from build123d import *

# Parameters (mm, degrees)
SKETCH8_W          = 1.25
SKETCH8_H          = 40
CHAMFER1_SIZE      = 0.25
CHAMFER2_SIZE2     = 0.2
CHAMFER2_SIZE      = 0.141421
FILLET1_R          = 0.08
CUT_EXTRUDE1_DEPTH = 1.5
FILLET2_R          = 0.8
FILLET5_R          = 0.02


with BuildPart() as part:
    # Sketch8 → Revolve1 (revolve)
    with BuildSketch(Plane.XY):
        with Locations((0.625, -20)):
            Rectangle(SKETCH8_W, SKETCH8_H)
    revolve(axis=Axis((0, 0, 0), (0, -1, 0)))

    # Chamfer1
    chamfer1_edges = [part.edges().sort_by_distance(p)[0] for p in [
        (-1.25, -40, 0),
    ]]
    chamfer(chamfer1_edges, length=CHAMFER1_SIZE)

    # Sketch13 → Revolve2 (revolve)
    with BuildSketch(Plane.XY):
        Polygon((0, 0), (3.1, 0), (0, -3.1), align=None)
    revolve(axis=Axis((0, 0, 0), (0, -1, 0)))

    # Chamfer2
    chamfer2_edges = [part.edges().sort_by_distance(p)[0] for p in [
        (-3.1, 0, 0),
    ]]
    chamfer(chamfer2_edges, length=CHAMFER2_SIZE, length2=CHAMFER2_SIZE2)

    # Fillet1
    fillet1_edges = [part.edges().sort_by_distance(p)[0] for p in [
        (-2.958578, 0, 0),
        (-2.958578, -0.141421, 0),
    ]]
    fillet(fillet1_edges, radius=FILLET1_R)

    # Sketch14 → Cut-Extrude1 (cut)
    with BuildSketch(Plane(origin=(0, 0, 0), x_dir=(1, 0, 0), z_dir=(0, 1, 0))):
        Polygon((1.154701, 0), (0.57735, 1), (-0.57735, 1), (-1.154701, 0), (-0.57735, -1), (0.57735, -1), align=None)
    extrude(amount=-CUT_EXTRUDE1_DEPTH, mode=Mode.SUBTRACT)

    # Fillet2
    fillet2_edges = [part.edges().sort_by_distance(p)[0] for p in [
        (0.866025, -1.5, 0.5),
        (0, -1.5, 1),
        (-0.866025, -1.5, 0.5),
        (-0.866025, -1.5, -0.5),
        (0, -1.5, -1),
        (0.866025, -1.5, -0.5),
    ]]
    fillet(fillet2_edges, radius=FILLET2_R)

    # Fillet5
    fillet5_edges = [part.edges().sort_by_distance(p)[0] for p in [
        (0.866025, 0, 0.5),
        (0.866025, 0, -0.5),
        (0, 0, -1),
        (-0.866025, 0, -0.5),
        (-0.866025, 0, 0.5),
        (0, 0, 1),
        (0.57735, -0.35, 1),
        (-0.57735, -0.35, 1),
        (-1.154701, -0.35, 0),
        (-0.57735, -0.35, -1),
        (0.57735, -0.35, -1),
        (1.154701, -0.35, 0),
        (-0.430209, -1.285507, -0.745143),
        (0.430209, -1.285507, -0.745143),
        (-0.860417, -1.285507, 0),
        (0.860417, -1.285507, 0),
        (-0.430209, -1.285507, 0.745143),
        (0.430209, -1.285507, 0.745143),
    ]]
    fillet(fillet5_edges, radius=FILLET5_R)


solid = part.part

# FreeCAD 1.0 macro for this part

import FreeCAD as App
import Part
import Sketcher
from FreeCAD import Vector
Q = App.Units.Quantity


def edges_at(feature, points):
    """Names of the edges that pass closest to the given points."""
    edges = feature.Shape.Edges
    near = lambda p: min(range(len(edges)), key=lambda i: edges[i].distToShape(Part.Vertex(*p))[0])
    return sorted({f"Edge{near(p) + 1}" for p in points})

doc = App.newDocument("Part")
params = doc.addObject("Spreadsheet::Sheet", "Params")
for row, (alias, value) in enumerate([
    ("sketch1_height", "40 mm"),
    ("sketch1_width", "1.25 mm"),
    ("revolution_angle", "360 deg"),
    ("chamfer_size", "0.25 mm"),
    ("sketch2_width", "3.1 mm"),
    ("revolution2_angle", "360 deg"),
    ("chamfer2_size", "0.141421 mm"),
    ("chamfer2_size2", "0.2 mm"),
    ("fillet_radius", "0.08 mm"),
    ("pocket1_length", "1.5 mm"),
    ("fillet2_radius", "0.8 mm"),
    ("fillet3_radius", "0.02 mm"),
], start=1):
    params.set(f"A{row}", alias)
    params.set(f"B{row}", "=" + value)
    params.setAlias(f"B{row}", alias)

body = doc.addObject("PartDesign::Body", "Body")

# Sketch on XY plane
sketch1 = body.newObject("Sketcher::SketchObject", "Sketch")
sketch1.AttachmentSupport = (doc.getObject("XY_Plane"), [""])
sketch1.MapMode = "FlatFace"
sketch1.addGeometry([
    Part.LineSegment(Vector(0, 0, 0), Vector(0, -40, 0)),
    Part.LineSegment(Vector(0, -40, 0), Vector(1.2, -40, 0)),
    Part.LineSegment(Vector(1.2, -40, 0), Vector(1.2, 0, 0)),
    Part.LineSegment(Vector(1.2, 0, 0), Vector(0, 0, 0)),
], False)
sketch1.addConstraint([
    Sketcher.Constraint("Coincident", 0, 2, 1, 1),
    Sketcher.Constraint("Coincident", 1, 2, 2, 1),
    Sketcher.Constraint("Coincident", 2, 2, 3, 1),
    Sketcher.Constraint("Coincident", 3, 2, 0, 1),
    Sketcher.Constraint("Vertical", 0),
    Sketcher.Constraint("Horizontal", 1),
    Sketcher.Constraint("Vertical", 2),
    Sketcher.Constraint("Horizontal", 3),
    Sketcher.Constraint("Coincident", 3, 2, -1, 1),
    Sketcher.Constraint("DistanceY", 0, 2, 0, 1, Q("40 mm")),
    Sketcher.Constraint("DistanceX", 1, 1, 1, 2, Q("1.25 mm")),
])
sketch1.setExpression("Constraints[9]", "Params.sketch1_height")
sketch1.setExpression("Constraints[10]", "Params.sketch1_width")
revolution = body.newObject("PartDesign::Revolution", "Revolution")
revolution.Profile = sketch1
revolution.ReferenceAxis = (sketch1, ["V_Axis"])
revolution.setExpression("Angle", "Params.revolution_angle")
doc.recompute()

chamfer = body.newObject("PartDesign::Chamfer", "Chamfer")
chamfer.Base = (revolution, edges_at(revolution, [(-1.25, -40, 0)]))
chamfer.setExpression("Size", "Params.chamfer_size")

# Sketch on XY plane
sketch2 = body.newObject("Sketcher::SketchObject", "Sketch001")
sketch2.AttachmentSupport = (doc.getObject("XY_Plane"), [""])
sketch2.MapMode = "FlatFace"
sketch2.addGeometry([
    Part.LineSegment(Vector(3.1, 0, 0), Vector(0, 0, 0)),
    Part.LineSegment(Vector(0, 0, 0), Vector(0, -3.1, 0)),
    Part.LineSegment(Vector(0, -3.1, 0), Vector(3.1, 0, 0)),
], False)
sketch2.addConstraint([
    Sketcher.Constraint("Coincident", 0, 2, 1, 1),
    Sketcher.Constraint("Coincident", 1, 2, 2, 1),
    Sketcher.Constraint("Coincident", 2, 2, 0, 1),
    Sketcher.Constraint("Horizontal", 0),
    Sketcher.Constraint("Vertical", 1),
    Sketcher.Constraint("Coincident", 0, 2, -1, 1),
    Sketcher.Constraint("Equal", 0, 1),
    Sketcher.Constraint("DistanceX", 0, 2, 0, 1, Q("3.1 mm")),
])
sketch2.setExpression("Constraints[7]", "Params.sketch2_width")
revolution2 = body.newObject("PartDesign::Revolution", "Revolution001")
revolution2.Profile = sketch2
revolution2.ReferenceAxis = (sketch2, ["V_Axis"])
revolution2.setExpression("Angle", "Params.revolution2_angle")
doc.recompute()

chamfer2 = body.newObject("PartDesign::Chamfer", "Chamfer001")
chamfer2.Base = (revolution2, edges_at(revolution2, [(-3.1, 0, 0)]))
chamfer2.ChamferType = "Two distances"
chamfer2.setExpression("Size", "Params.chamfer2_size")
chamfer2.setExpression("Size2", "Params.chamfer2_size2")
chamfer2.FlipDirection = True
doc.recompute()

fillet = body.newObject("PartDesign::Fillet", "Fillet")
fillet.Base = (chamfer2, edges_at(chamfer2, [(-2.959, 0, 0), (-2.959, -0.141, 0)]))
fillet.setExpression("Radius", "Params.fillet_radius")

# Sketch on XZ plane
sketch3 = body.newObject("Sketcher::SketchObject", "Sketch002")
sketch3.AttachmentSupport = (doc.getObject("XZ_Plane"), [""])
sketch3.MapMode = "FlatFace"
sketch3.addGeometry([
    Part.LineSegment(Vector(1.2, 0, 0), Vector(0.6, -1, 0)),  # 0
    Part.LineSegment(Vector(0.6, -1, 0), Vector(-0.6, -1, 0)),  # 1
    Part.LineSegment(Vector(-0.6, -1, 0), Vector(-1.2, 0, 0)),  # 2
    Part.LineSegment(Vector(-1.2, 0, 0), Vector(-0.6, 1, 0)),  # 3
    Part.LineSegment(Vector(-0.6, 1, 0), Vector(0.6, 1, 0)),  # 4
    Part.LineSegment(Vector(0.6, 1, 0), Vector(1.2, 0, 0)),  # 5
], False)
sketch3.addConstraint([
    Sketcher.Constraint("Coincident", 0, 2, 1, 1),
    Sketcher.Constraint("Coincident", 1, 2, 2, 1),
    Sketcher.Constraint("Coincident", 2, 2, 3, 1),
    Sketcher.Constraint("Coincident", 3, 2, 4, 1),
    Sketcher.Constraint("Coincident", 4, 2, 5, 1),
    Sketcher.Constraint("Coincident", 5, 2, 0, 1),
    Sketcher.Constraint("Horizontal", 1),
    Sketcher.Constraint("Horizontal", 4),
    Sketcher.Constraint("Symmetric", 0, 2, 3, 2, -1, 1),
    Sketcher.Constraint("Symmetric", 2, 2, 5, 2, -1, 1),
    Sketcher.Constraint("PointOnObject", 2, 2, -1),
    Sketcher.Constraint("Parallel", 2, 5),
    Sketcher.Constraint("Vertical", 1, 2, 3, 2),
    Sketcher.Constraint("DistanceY", 0, 2, -1, 1, Q("1 mm")),
    Sketcher.Constraint("DistanceX", 1, 2, 1, 1, Q("1.1547 mm")),
    Sketcher.Constraint("Distance", 0, Q("1.154701 mm")),
])
pocket1 = body.newObject("PartDesign::Pocket", "Pocket")
pocket1.Profile = sketch3
pocket1.setExpression("Length", "Params.pocket1_length")
pocket1.Reversed = True
doc.recompute()

fillet2 = body.newObject("PartDesign::Fillet", "Fillet001")
fillet2.Base = (pocket1, edges_at(pocket1, [
    (0.866, -1.5, 0.5),
    (0, -1.5, 1),
    (-0.866, -1.5, 0.5),
    (-0.866, -1.5, -0.5),
    (0, -1.5, -1),
    (0.866, -1.5, -0.5),
]))
fillet2.setExpression("Radius", "Params.fillet2_radius")
doc.recompute()

fillet3 = body.newObject("PartDesign::Fillet", "Fillet002")
fillet3.Base = (fillet2, edges_at(fillet2, [
    (0.866, 0, 0.5),
    (0.866, 0, -0.5),
    (0, 0, -1),
    (-0.866, 0, -0.5),
    (-0.866, 0, 0.5),
    (0, 0, 1),
    (0.577, -0.35, 1),
    (-0.577, -0.35, 1),
    (-1.155, -0.35, 0),
    (-0.577, -0.35, -1),
    (0.577, -0.35, -1),
    (1.155, -0.35, 0),
    (-0.43, -1.286, -0.745),
    (0.43, -1.286, -0.745),
    (-0.86, -1.286, 0),
    (0.86, -1.286, 0),
    (-0.43, -1.286, 0.745),
    (0.43, -1.286, 0.745),
]))
fillet3.setExpression("Radius", "Params.fillet3_radius")

doc.recompute()
